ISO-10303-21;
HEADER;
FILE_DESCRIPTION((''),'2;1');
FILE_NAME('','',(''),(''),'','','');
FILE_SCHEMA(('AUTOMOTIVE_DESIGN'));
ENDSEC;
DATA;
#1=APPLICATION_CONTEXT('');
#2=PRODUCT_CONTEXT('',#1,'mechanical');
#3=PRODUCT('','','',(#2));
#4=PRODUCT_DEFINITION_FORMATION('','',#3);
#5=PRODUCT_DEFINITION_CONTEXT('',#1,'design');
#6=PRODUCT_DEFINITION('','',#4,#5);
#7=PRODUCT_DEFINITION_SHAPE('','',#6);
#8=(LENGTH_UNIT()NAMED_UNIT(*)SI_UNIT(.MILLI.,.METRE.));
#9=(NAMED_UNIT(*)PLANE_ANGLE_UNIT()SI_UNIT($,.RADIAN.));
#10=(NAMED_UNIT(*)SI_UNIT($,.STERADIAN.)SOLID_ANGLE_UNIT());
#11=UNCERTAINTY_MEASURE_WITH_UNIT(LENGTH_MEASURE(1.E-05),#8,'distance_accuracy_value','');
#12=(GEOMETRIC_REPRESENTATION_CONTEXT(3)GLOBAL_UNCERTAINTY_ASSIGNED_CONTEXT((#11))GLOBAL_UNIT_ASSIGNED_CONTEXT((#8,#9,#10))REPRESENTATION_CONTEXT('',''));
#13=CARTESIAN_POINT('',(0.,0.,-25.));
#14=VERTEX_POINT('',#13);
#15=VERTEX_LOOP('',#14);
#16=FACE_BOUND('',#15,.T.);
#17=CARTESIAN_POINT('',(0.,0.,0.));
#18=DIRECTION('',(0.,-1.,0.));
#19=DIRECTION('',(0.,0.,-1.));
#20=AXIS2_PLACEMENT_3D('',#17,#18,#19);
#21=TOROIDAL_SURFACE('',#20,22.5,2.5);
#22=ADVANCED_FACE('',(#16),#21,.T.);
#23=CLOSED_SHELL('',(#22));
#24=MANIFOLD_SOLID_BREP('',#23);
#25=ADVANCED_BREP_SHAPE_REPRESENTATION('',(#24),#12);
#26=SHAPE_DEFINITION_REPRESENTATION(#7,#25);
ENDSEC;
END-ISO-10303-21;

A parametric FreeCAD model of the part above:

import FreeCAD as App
import Part
import Sketcher

V = App.Vector

doc = App.newDocument("Part")
body = doc.addObject("PartDesign::Body", "Body")

# Sketch on XY plane
sketch1 = body.newObject("Sketcher::SketchObject", "Sketch")
sketch1.AttachmentSupport = (doc.getObject("XY_Plane"), [""])
sketch1.MapMode = "FlatFace"
sketch1.addGeometry(Part.Circle(V(22.5, 0, 0), V(0, 0, 1), 2.5), False)
sketch1.addConstraint([
    Sketcher.Constraint("PointOnObject", 0, 3, -1),
    Sketcher.Constraint("Diameter", 0, 5.0),
    Sketcher.Constraint("DistanceX", -1, 1, 0, 3, 22.5),
])

# Sketch on XZ plane
sketch2 = body.newObject("Sketcher::SketchObject", "Sketch001")
sketch2.AttachmentSupport = (doc.getObject("XZ_Plane"), [""])
sketch2.MapMode = "FlatFace"
sketch2.addGeometry(Part.Circle(V(0, 0, 0), V(0, 0, 1), 20), False)
sketch2.addConstraint([
    Sketcher.Constraint("Coincident", 0, 3, -1, 1),
    Sketcher.Constraint("Diameter", 0, 40.0),
])
doc.recompute()

additivepipe = body.newObject("PartDesign::AdditivePipe", "AdditivePipe")
additivepipe.Profile = sketch1
additivepipe.Spine = (sketch2, ["Edge1"])

doc.recompute()
